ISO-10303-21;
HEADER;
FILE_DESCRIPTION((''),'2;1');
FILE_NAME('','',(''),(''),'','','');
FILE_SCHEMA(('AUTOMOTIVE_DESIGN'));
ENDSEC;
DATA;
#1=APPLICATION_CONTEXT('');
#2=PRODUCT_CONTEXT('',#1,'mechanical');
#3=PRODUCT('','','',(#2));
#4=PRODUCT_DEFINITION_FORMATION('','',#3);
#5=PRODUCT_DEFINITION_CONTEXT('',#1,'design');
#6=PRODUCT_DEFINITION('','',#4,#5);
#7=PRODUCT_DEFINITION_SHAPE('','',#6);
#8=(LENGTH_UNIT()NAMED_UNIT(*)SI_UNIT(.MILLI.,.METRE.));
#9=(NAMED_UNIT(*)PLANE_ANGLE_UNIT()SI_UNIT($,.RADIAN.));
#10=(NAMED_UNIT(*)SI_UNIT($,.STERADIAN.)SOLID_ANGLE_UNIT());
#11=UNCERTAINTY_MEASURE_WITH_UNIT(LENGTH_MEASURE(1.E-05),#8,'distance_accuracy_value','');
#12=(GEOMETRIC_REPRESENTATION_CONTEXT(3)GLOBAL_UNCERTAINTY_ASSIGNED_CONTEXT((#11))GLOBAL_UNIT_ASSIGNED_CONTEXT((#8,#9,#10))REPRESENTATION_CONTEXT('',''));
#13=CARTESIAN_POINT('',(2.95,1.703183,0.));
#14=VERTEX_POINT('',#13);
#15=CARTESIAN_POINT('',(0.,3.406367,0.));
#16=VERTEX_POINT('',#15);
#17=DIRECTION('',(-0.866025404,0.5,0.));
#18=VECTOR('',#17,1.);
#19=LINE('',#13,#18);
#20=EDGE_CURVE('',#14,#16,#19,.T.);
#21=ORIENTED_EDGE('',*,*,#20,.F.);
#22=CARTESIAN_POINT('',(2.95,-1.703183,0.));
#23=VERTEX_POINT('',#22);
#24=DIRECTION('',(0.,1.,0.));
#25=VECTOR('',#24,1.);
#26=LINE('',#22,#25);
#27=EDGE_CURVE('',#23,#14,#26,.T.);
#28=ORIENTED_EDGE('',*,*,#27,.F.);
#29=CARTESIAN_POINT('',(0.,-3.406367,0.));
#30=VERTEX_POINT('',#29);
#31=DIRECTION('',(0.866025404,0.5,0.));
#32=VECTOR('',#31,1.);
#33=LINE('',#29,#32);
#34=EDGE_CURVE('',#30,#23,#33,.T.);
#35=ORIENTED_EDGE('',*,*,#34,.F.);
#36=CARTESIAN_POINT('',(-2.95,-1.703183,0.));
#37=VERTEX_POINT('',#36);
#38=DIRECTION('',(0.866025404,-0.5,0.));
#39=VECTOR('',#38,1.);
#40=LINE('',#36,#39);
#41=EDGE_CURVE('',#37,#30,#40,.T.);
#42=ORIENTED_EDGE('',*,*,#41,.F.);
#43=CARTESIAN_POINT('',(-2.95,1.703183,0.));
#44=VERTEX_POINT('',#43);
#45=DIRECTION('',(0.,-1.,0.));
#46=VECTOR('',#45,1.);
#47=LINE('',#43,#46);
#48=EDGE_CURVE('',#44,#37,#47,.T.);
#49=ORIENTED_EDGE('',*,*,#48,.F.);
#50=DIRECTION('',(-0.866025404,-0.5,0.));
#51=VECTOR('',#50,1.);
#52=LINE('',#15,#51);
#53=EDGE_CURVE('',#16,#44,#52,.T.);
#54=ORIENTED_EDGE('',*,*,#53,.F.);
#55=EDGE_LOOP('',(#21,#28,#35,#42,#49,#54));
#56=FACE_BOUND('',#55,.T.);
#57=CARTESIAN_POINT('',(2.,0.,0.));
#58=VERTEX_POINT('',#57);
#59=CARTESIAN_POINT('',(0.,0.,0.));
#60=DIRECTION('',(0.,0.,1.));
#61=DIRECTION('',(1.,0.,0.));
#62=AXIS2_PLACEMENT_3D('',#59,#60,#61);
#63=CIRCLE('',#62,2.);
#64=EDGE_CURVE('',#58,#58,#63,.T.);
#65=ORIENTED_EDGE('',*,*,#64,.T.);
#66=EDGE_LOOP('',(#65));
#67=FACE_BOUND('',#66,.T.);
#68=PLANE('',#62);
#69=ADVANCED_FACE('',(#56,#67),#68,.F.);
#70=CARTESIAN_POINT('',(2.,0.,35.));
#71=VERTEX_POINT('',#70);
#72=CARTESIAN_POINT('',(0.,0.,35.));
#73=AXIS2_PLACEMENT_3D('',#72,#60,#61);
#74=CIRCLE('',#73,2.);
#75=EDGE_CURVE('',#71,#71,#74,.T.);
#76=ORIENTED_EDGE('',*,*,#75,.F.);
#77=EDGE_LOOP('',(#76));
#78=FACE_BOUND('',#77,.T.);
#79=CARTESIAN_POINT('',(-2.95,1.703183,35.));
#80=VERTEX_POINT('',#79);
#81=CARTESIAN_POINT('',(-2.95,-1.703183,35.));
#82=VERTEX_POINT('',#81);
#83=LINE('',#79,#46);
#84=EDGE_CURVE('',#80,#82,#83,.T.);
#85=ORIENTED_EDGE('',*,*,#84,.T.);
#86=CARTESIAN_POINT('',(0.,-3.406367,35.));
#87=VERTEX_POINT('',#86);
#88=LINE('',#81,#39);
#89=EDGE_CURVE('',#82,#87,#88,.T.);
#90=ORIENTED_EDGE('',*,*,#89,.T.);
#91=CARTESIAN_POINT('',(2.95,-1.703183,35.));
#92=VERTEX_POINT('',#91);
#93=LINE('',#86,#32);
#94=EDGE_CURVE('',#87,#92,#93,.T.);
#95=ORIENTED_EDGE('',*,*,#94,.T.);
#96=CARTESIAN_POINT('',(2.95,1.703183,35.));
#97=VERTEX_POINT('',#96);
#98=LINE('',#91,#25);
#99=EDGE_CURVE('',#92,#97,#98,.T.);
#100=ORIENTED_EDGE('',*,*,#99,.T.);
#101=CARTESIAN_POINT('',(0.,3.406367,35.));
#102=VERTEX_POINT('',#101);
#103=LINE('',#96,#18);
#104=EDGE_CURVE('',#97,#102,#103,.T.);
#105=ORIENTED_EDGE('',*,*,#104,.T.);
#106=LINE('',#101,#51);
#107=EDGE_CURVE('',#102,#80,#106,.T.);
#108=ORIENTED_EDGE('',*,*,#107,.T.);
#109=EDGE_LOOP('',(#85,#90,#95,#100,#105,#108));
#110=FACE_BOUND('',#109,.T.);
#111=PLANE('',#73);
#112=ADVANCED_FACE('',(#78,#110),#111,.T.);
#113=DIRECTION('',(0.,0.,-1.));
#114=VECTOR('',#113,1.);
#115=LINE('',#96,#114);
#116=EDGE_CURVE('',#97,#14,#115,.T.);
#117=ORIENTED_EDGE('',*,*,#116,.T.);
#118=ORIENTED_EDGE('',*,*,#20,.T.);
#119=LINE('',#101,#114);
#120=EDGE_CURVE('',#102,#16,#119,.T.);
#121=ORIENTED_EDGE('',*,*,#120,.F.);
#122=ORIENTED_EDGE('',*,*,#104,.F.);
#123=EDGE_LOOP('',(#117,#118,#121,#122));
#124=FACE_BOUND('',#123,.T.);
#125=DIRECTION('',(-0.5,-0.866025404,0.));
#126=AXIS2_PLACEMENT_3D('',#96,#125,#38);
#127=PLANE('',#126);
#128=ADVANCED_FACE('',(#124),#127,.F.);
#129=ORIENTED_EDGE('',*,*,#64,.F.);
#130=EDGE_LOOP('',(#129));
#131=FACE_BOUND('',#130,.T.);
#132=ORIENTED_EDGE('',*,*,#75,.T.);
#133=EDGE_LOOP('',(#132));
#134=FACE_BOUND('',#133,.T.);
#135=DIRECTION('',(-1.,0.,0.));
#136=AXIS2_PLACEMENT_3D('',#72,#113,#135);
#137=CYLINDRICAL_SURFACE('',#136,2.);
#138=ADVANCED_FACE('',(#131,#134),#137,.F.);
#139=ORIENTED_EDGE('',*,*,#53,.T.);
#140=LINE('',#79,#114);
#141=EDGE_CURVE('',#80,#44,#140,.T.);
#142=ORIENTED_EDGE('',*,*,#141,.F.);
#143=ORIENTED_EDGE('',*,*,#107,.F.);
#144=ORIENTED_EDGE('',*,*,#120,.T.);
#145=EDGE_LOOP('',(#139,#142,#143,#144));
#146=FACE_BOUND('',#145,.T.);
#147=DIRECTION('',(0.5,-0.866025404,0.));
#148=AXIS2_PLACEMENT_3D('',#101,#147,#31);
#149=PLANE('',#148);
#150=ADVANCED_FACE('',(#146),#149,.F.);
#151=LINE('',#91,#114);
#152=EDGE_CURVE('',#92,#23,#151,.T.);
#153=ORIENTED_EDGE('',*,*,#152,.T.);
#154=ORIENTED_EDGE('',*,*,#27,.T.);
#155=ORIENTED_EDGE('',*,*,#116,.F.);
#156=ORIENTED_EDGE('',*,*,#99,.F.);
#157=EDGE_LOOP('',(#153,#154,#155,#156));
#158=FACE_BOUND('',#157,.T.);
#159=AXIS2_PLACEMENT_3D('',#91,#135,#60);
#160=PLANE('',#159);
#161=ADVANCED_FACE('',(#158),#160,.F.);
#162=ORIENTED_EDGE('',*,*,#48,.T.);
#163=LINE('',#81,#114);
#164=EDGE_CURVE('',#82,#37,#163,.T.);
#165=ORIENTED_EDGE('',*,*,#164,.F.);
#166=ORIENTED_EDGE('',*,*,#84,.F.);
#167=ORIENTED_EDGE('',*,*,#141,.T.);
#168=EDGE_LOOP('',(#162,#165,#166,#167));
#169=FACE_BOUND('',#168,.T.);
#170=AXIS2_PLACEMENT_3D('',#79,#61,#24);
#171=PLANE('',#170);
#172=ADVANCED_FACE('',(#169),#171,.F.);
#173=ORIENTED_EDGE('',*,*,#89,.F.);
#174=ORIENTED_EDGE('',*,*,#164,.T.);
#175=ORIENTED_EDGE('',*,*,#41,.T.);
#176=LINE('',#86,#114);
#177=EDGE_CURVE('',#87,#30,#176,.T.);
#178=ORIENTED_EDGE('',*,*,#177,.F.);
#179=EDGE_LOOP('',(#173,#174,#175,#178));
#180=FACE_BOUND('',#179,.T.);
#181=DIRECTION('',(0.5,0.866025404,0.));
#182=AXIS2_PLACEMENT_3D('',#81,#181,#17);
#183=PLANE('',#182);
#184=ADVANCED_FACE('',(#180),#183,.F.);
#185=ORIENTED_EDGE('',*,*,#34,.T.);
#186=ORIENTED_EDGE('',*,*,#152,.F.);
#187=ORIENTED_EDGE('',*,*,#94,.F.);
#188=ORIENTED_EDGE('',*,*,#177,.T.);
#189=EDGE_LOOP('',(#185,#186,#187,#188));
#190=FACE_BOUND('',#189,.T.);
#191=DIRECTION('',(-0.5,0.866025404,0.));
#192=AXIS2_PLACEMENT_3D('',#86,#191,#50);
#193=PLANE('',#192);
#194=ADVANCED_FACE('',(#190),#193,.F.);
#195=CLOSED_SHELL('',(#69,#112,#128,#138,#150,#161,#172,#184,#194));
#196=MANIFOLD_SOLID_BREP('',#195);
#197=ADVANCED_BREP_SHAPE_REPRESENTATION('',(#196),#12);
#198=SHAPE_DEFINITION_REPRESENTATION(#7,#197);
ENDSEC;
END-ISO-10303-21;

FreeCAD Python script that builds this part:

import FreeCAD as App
import Part
import Sketcher

V = App.Vector
Q = App.Units.Quantity


def add_polygon(sketch, points):
    """Adds a closed chain of lines whose ends are joined by coincident constraints."""
    first, n = sketch.GeometryCount, len(points)
    for a, b in zip(points, points[1:] + points[:1]):
        sketch.addGeometry(Part.LineSegment(App.Vector(*a, 0), App.Vector(*b, 0)), False)
    for i in range(n):
        sketch.addConstraint(Sketcher.Constraint("Coincident", first + i, 2, first + (i + 1) % n, 1))

doc = App.newDocument("Part")
body = doc.addObject("PartDesign::Body", "Body")

# Sketch on XY plane
sketch1 = body.newObject("Sketcher::SketchObject", "Sketch")
sketch1.AttachmentSupport = (doc.getObject("XY_Plane"), [""])
sketch1.MapMode = "FlatFace"
add_polygon(sketch1, [(2.95, -1.703183), (2.95, 1.703183), (0, 3.406367), (-2.95, 1.703183), (-2.95, -1.703183), (0, -3.406367)])  # lines 0-5
sketch1.addGeometry(Part.Circle(V(0, 0, 0), V(0, 0, 1), 2), False)  # 6
sketch1.addConstraint(Sketcher.Constraint("Vertical", 0))
sketch1.addConstraint(Sketcher.Constraint("Vertical", 3))
sketch1.addConstraint(Sketcher.Constraint("Coincident", 6, 3, -1, 1))
sketch1.addConstraint(Sketcher.Constraint("Symmetric", 0, 2, 3, 2, -1, 1))
sketch1.addConstraint(Sketcher.Constraint("Symmetric", 1, 2, 4, 2, -1, 1))
sketch1.addConstraint(Sketcher.Constraint("PointOnObject", 1, 2, -2))
sketch1.addConstraint(Sketcher.Constraint("Parallel", 2, 5))
sketch1.addConstraint(Sketcher.Constraint("Horizontal", 0, 2, 2, 2))
sketch1.addConstraint(Sketcher.Constraint("Diameter", 6, Q("4 mm")))
sketch1.addConstraint(Sketcher.Constraint("Angle", 1, Q("150 deg")))
sketch1.addConstraint(Sketcher.Constraint("DistanceX", 2, 2, 0, 2, Q("5.9 mm")))
sketch1.addConstraint(Sketcher.Constraint("DistanceY", 0, 1, 0, 2, Q("3.406367 mm")))
pad1 = body.newObject("PartDesign::Pad", "Pad")
pad1.Profile = sketch1
pad1.Length = 35

doc.recompute()
